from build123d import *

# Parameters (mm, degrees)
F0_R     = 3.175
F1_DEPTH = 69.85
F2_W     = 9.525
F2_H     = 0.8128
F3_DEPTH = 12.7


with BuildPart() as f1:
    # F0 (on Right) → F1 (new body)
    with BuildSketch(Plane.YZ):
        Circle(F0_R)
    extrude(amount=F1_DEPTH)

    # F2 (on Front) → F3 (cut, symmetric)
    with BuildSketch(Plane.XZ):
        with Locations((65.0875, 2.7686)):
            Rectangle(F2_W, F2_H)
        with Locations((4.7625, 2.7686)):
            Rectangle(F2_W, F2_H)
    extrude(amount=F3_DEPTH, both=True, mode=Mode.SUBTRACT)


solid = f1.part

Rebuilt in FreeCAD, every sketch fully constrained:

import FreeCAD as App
import Part
import Sketcher
Q = App.Units.Quantity


def add_polygon(sketch, points):
    """Adds a closed chain of lines whose ends are joined by coincident constraints."""
    first, n = sketch.GeometryCount, len(points)
    for a, b in zip(points, points[1:] + points[:1]):
        sketch.addGeometry(Part.LineSegment(App.Vector(*a, 0), App.Vector(*b, 0)), False)
    for i in range(n):
        sketch.addConstraint(Sketcher.Constraint("Coincident", first + i, 2, first + (i + 1) % n, 1))

doc = App.newDocument("Part")
body = doc.addObject("PartDesign::Body", "Body")

# Sketch on YZ plane
sketch1 = body.newObject("Sketcher::SketchObject", "Sketch")
sketch1.AttachmentSupport = (doc.getObject("YZ_Plane"), [""])
sketch1.MapMode = "FlatFace"
sketch1.addGeometry(Part.Circle(App.Vector(0, 0, 0), App.Vector(0, 0, 1), 3.2), False)
sketch1.addConstraint(Sketcher.Constraint("Coincident", 0, 3, -1, 1))
sketch1.addConstraint(Sketcher.Constraint("Diameter", 0, Q("0.25 in")))
pad1 = body.newObject("PartDesign::Pad", "Pad")
pad1.Profile = sketch1
pad1.Length = Q("2.75 in")

# Sketch on XZ plane
sketch2 = body.newObject("Sketcher::SketchObject", "Sketch001")
sketch2.AttachmentSupport = (doc.getObject("XZ_Plane"), [""])
sketch2.MapMode = "FlatFace"
add_polygon(sketch2, [(60.3, 3.2), (60.3, 2.4), (69.8, 2.4), (69.8, 3.2)])  # lines 0-3
add_polygon(sketch2, [(0, 3.2), (0, 2.4), (9.5, 2.4), (9.5, 3.2)])  # lines 4-7
sketch2.addConstraint(Sketcher.Constraint("Vertical", 0))
sketch2.addConstraint(Sketcher.Constraint("Horizontal", 1))
sketch2.addConstraint(Sketcher.Constraint("Vertical", 2))
sketch2.addConstraint(Sketcher.Constraint("Horizontal", 3))
sketch2.addConstraint(Sketcher.Constraint("Vertical", 4))
sketch2.addConstraint(Sketcher.Constraint("Horizontal", 5))
sketch2.addConstraint(Sketcher.Constraint("Vertical", 6))
sketch2.addConstraint(Sketcher.Constraint("Horizontal", 7))
sketch2.addConstraint(Sketcher.Constraint("PointOnObject", 4, 2, -2))
sketch2.addConstraint(Sketcher.Constraint("Horizontal", 1, 2, 4, 2))
sketch2.addConstraint(Sketcher.Constraint("Horizontal", 3, 2, 6, 2))
sketch2.addConstraint(Sketcher.Constraint("Equal", 3, 5))
sketch2.addConstraint(Sketcher.Constraint("DistanceX", 5, 2, 0, 2, Q("2 in")))
sketch2.addConstraint(Sketcher.Constraint("DistanceX", 1, 1, 1, 2, Q("0.375 in")))
sketch2.addConstraint(Sketcher.Constraint("DistanceY", 0, 2, 0, 1, Q("0.032 in")))
sketch2.addConstraint(Sketcher.Constraint("DistanceY", -1, 1, 0, 2, Q("0.093 in")))
pocket1 = body.newObject("PartDesign::Pocket", "Pocket")
pocket1.Profile = sketch2
pocket1.Length = Q("1 in")
pocket1.Midplane = True

doc.recompute()
